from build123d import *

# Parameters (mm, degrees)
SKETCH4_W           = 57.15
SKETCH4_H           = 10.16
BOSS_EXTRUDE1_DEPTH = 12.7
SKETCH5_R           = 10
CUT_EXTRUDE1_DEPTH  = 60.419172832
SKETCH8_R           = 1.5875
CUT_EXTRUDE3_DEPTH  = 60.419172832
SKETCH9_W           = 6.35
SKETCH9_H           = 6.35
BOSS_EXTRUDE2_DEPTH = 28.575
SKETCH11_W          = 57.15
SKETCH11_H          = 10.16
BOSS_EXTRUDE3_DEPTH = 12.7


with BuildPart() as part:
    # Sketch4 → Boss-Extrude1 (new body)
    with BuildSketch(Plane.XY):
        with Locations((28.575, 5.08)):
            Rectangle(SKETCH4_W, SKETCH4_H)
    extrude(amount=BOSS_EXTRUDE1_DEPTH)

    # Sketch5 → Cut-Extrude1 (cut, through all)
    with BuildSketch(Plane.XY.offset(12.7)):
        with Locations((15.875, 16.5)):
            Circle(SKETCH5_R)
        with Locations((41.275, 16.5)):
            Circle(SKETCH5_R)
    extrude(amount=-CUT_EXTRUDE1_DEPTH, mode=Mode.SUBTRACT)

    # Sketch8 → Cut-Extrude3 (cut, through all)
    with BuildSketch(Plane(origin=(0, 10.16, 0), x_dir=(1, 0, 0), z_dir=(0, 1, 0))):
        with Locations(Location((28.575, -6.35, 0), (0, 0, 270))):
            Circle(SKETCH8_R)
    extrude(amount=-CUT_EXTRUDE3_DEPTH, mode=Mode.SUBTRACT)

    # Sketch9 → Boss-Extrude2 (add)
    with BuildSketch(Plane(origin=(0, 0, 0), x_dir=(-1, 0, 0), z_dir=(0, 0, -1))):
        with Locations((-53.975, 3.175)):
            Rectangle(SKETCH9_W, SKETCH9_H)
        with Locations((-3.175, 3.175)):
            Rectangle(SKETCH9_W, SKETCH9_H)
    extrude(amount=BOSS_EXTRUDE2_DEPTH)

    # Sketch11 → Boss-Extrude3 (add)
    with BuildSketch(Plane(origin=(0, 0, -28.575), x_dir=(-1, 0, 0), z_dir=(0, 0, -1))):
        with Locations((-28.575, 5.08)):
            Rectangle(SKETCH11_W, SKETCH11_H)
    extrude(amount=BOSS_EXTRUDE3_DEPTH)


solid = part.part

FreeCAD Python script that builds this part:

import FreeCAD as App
import Part
import Sketcher
from FreeCAD import Vector
Q = App.Units.Quantity

doc = App.newDocument("Part")
body = doc.addObject("PartDesign::Body", "Body")

sketch1 = body.newObject("Sketcher::SketchObject", "Sketch")
sketch1.AttachmentSupport = (doc.getObject("XY_Plane"), [""])
sketch1.MapMode = "FlatFace"
sketch1.addGeometry(Part.LineSegment(Vector(0, 10, 0), Vector(0, 0, 0)), False)
sketch1.addGeometry(Part.LineSegment(Vector(0, 0, 0), Vector(57, 0, 0)), False)
sketch1.addGeometry(Part.LineSegment(Vector(57, 0, 0), Vector(57, 10, 0)), False)
sketch1.addGeometry(Part.LineSegment(Vector(57, 10, 0), Vector(0, 10, 0)), False)
sketch1.addConstraint(Sketcher.Constraint("Coincident", 0, 2, 1, 1))
sketch1.addConstraint(Sketcher.Constraint("Coincident", 1, 2, 2, 1))
sketch1.addConstraint(Sketcher.Constraint("Coincident", 2, 2, 3, 1))
sketch1.addConstraint(Sketcher.Constraint("Coincident", 3, 2, 0, 1))
sketch1.addConstraint(Sketcher.Constraint("Vertical", 0))
sketch1.addConstraint(Sketcher.Constraint("Horizontal", 1))
sketch1.addConstraint(Sketcher.Constraint("Vertical", 2))
sketch1.addConstraint(Sketcher.Constraint("Horizontal", 3))
sketch1.addConstraint(Sketcher.Constraint("Coincident", 0, 2, -1, 1))
sketch1.addConstraint(Sketcher.Constraint("DistanceY", 0, 2, 0, 1, Q("0.4 in")))
sketch1.addConstraint(Sketcher.Constraint("DistanceX", 1, 1, 1, 2, Q("2.25 in")))
pad1 = body.newObject("PartDesign::Pad", "Pad")
pad1.Profile = sketch1
pad1.Length = Q("0.5 in")

sketch2 = body.newObject("Sketcher::SketchObject", "Sketch001")
sketch2.AttachmentSupport = (doc.getObject("XY_Plane"), [""])
sketch2.MapMode = "FlatFace"
sketch2.AttachmentOffset = App.Placement(Vector(0, 0, 0.5 * 25.4), App.Rotation())
sketch2.addGeometry(Part.Circle(Vector(16, 16, 0), Vector(0, 0, 1), 10), False)
sketch2.addGeometry(Part.Circle(Vector(41, 16, 0), Vector(0, 0, 1), 10), False)
sketch2.addConstraint(Sketcher.Constraint("Equal", 0, 1))
sketch2.addConstraint(Sketcher.Constraint("Horizontal", 0, 3, 1, 3))
sketch2.addConstraint(Sketcher.Constraint("DistanceX", 0, 3, 1, 3, Q("1 in")))
sketch2.addConstraint(Sketcher.Constraint("Diameter", 0, Q("20 mm")))
sketch2.addConstraint(Sketcher.Constraint("DistanceX", -1, 1, 0, 3, Q("0.625 in")))
sketch2.addConstraint(Sketcher.Constraint("DistanceY", -1, 1, 0, 3, Q("16.5 mm")))
pocket1 = body.newObject("PartDesign::Pocket", "Pocket")
pocket1.Profile = sketch2
pocket1.Type = "ThroughAll"

sketch3 = body.newObject("Sketcher::SketchObject", "Sketch002")
sketch3.AttachmentSupport = (doc.getObject("XZ_Plane"), [""])
sketch3.MapMode = "FlatFace"
sketch3.AttachmentOffset = App.Placement(Vector(0, 0, -0.4 * 25.4), App.Rotation())
sketch3.addGeometry(Part.Circle(Vector(28.6, 6.3, 0), Vector(0, 0, 1), 1.6), False)
sketch3.addConstraint(Sketcher.Constraint("Diameter", 0, Q("0.125 in")))
sketch3.addConstraint(Sketcher.Constraint("DistanceY", -1, 1, 0, 3, Q("0.25 in")))
sketch3.addConstraint(Sketcher.Constraint("DistanceX", -1, 1, 0, 3, Q("1.125 in")))
pocket2 = body.newObject("PartDesign::Pocket", "Pocket001")
pocket2.Profile = sketch3
pocket2.Type = "ThroughAll"
pocket2.Reversed = True

sketch4 = body.newObject("Sketcher::SketchObject", "Sketch003")
sketch4.AttachmentSupport = (doc.getObject("XY_Plane"), [""])
sketch4.MapMode = "FlatFace"
sketch4.addGeometry(Part.LineSegment(Vector(57, 6, 0), Vector(57, 0, 0)), False)
sketch4.addGeometry(Part.LineSegment(Vector(57, 0, 0), Vector(51, 0, 0)), False)
sketch4.addGeometry(Part.LineSegment(Vector(51, 0, 0), Vector(51, 6, 0)), False)
sketch4.addGeometry(Part.LineSegment(Vector(51, 6, 0), Vector(57, 6, 0)), False)
sketch4.addGeometry(Part.LineSegment(Vector(6, 6, 0), Vector(6, 0, 0)), False)
sketch4.addGeometry(Part.LineSegment(Vector(6, 0, 0), Vector(0, 0, 0)), False)
sketch4.addGeometry(Part.LineSegment(Vector(0, 0, 0), Vector(0, 6, 0)), False)
sketch4.addGeometry(Part.LineSegment(Vector(0, 6, 0), Vector(6, 6, 0)), False)
sketch4.addConstraint(Sketcher.Constraint("Coincident", 0, 2, 1, 1))
sketch4.addConstraint(Sketcher.Constraint("Coincident", 1, 2, 2, 1))
sketch4.addConstraint(Sketcher.Constraint("Coincident", 2, 2, 3, 1))
sketch4.addConstraint(Sketcher.Constraint("Coincident", 3, 2, 0, 1))
sketch4.addConstraint(Sketcher.Constraint("Coincident", 4, 2, 5, 1))
sketch4.addConstraint(Sketcher.Constraint("Coincident", 5, 2, 6, 1))
sketch4.addConstraint(Sketcher.Constraint("Coincident", 6, 2, 7, 1))
sketch4.addConstraint(Sketcher.Constraint("Coincident", 7, 2, 4, 1))
sketch4.addConstraint(Sketcher.Constraint("Vertical", 0))
sketch4.addConstraint(Sketcher.Constraint("Horizontal", 1))
sketch4.addConstraint(Sketcher.Constraint("Vertical", 2))
sketch4.addConstraint(Sketcher.Constraint("Horizontal", 3))
sketch4.addConstraint(Sketcher.Constraint("Vertical", 4))
sketch4.addConstraint(Sketcher.Constraint("Horizontal", 5))
sketch4.addConstraint(Sketcher.Constraint("Vertical", 6))
sketch4.addConstraint(Sketcher.Constraint("Horizontal", 7))
sketch4.addConstraint(Sketcher.Constraint("Coincident", 5, 2, -1, 1))
sketch4.addConstraint(Sketcher.Constraint("PointOnObject", 0, 2, -1))
sketch4.addConstraint(Sketcher.Constraint("Horizontal", 3, 2, 6, 2))
sketch4.addConstraint(Sketcher.Constraint("Equal", 3, 5))
sketch4.addConstraint(Sketcher.Constraint("Equal", 7, 0))
sketch4.addConstraint(Sketcher.Constraint("DistanceX", -1, 1, 1, 2, Q("2 in")))
sketch4.addConstraint(Sketcher.Constraint("DistanceX", 1, 2, 1, 1, Q("0.25 in")))
pad2 = body.newObject("PartDesign::Pad", "Pad001")
pad2.Profile = sketch4
pad2.Length = Q("1.125 in")
pad2.Reversed = True

sketch5 = body.newObject("Sketcher::SketchObject", "Sketch004")
sketch5.AttachmentSupport = (doc.getObject("XY_Plane"), [""])
sketch5.MapMode = "FlatFace"
sketch5.AttachmentOffset = App.Placement(Vector(0, 0, -1.125 * 25.4), App.Rotation())
sketch5.addGeometry(Part.LineSegment(Vector(57, 10, 0), Vector(57, 0, 0)), False)
sketch5.addGeometry(Part.LineSegment(Vector(57, 0, 0), Vector(0, 0, 0)), False)
sketch5.addGeometry(Part.LineSegment(Vector(0, 0, 0), Vector(0, 10, 0)), False)
sketch5.addGeometry(Part.LineSegment(Vector(0, 10, 0), Vector(57, 10, 0)), False)
sketch5.addConstraint(Sketcher.Constraint("Coincident", 0, 2, 1, 1))
sketch5.addConstraint(Sketcher.Constraint("Coincident", 1, 2, 2, 1))
sketch5.addConstraint(Sketcher.Constraint("Coincident", 2, 2, 3, 1))
sketch5.addConstraint(Sketcher.Constraint("Coincident", 3, 2, 0, 1))
sketch5.addConstraint(Sketcher.Constraint("Vertical", 0))
sketch5.addConstraint(Sketcher.Constraint("Horizontal", 1))
sketch5.addConstraint(Sketcher.Constraint("Vertical", 2))
sketch5.addConstraint(Sketcher.Constraint("Horizontal", 3))
sketch5.addConstraint(Sketcher.Constraint("Coincident", 1, 2, -1, 1))
sketch5.addConstraint(Sketcher.Constraint("DistanceY", 0, 2, 0, 1, Q("0.4 in")))
sketch5.addConstraint(Sketcher.Constraint("DistanceX", 1, 2, 1, 1, Q("2.25 in")))
pad3 = body.newObject("PartDesign::Pad", "Pad002")
pad3.Profile = sketch5
pad3.Length = Q("0.5 in")
pad3.Reversed = True

doc.recompute()
